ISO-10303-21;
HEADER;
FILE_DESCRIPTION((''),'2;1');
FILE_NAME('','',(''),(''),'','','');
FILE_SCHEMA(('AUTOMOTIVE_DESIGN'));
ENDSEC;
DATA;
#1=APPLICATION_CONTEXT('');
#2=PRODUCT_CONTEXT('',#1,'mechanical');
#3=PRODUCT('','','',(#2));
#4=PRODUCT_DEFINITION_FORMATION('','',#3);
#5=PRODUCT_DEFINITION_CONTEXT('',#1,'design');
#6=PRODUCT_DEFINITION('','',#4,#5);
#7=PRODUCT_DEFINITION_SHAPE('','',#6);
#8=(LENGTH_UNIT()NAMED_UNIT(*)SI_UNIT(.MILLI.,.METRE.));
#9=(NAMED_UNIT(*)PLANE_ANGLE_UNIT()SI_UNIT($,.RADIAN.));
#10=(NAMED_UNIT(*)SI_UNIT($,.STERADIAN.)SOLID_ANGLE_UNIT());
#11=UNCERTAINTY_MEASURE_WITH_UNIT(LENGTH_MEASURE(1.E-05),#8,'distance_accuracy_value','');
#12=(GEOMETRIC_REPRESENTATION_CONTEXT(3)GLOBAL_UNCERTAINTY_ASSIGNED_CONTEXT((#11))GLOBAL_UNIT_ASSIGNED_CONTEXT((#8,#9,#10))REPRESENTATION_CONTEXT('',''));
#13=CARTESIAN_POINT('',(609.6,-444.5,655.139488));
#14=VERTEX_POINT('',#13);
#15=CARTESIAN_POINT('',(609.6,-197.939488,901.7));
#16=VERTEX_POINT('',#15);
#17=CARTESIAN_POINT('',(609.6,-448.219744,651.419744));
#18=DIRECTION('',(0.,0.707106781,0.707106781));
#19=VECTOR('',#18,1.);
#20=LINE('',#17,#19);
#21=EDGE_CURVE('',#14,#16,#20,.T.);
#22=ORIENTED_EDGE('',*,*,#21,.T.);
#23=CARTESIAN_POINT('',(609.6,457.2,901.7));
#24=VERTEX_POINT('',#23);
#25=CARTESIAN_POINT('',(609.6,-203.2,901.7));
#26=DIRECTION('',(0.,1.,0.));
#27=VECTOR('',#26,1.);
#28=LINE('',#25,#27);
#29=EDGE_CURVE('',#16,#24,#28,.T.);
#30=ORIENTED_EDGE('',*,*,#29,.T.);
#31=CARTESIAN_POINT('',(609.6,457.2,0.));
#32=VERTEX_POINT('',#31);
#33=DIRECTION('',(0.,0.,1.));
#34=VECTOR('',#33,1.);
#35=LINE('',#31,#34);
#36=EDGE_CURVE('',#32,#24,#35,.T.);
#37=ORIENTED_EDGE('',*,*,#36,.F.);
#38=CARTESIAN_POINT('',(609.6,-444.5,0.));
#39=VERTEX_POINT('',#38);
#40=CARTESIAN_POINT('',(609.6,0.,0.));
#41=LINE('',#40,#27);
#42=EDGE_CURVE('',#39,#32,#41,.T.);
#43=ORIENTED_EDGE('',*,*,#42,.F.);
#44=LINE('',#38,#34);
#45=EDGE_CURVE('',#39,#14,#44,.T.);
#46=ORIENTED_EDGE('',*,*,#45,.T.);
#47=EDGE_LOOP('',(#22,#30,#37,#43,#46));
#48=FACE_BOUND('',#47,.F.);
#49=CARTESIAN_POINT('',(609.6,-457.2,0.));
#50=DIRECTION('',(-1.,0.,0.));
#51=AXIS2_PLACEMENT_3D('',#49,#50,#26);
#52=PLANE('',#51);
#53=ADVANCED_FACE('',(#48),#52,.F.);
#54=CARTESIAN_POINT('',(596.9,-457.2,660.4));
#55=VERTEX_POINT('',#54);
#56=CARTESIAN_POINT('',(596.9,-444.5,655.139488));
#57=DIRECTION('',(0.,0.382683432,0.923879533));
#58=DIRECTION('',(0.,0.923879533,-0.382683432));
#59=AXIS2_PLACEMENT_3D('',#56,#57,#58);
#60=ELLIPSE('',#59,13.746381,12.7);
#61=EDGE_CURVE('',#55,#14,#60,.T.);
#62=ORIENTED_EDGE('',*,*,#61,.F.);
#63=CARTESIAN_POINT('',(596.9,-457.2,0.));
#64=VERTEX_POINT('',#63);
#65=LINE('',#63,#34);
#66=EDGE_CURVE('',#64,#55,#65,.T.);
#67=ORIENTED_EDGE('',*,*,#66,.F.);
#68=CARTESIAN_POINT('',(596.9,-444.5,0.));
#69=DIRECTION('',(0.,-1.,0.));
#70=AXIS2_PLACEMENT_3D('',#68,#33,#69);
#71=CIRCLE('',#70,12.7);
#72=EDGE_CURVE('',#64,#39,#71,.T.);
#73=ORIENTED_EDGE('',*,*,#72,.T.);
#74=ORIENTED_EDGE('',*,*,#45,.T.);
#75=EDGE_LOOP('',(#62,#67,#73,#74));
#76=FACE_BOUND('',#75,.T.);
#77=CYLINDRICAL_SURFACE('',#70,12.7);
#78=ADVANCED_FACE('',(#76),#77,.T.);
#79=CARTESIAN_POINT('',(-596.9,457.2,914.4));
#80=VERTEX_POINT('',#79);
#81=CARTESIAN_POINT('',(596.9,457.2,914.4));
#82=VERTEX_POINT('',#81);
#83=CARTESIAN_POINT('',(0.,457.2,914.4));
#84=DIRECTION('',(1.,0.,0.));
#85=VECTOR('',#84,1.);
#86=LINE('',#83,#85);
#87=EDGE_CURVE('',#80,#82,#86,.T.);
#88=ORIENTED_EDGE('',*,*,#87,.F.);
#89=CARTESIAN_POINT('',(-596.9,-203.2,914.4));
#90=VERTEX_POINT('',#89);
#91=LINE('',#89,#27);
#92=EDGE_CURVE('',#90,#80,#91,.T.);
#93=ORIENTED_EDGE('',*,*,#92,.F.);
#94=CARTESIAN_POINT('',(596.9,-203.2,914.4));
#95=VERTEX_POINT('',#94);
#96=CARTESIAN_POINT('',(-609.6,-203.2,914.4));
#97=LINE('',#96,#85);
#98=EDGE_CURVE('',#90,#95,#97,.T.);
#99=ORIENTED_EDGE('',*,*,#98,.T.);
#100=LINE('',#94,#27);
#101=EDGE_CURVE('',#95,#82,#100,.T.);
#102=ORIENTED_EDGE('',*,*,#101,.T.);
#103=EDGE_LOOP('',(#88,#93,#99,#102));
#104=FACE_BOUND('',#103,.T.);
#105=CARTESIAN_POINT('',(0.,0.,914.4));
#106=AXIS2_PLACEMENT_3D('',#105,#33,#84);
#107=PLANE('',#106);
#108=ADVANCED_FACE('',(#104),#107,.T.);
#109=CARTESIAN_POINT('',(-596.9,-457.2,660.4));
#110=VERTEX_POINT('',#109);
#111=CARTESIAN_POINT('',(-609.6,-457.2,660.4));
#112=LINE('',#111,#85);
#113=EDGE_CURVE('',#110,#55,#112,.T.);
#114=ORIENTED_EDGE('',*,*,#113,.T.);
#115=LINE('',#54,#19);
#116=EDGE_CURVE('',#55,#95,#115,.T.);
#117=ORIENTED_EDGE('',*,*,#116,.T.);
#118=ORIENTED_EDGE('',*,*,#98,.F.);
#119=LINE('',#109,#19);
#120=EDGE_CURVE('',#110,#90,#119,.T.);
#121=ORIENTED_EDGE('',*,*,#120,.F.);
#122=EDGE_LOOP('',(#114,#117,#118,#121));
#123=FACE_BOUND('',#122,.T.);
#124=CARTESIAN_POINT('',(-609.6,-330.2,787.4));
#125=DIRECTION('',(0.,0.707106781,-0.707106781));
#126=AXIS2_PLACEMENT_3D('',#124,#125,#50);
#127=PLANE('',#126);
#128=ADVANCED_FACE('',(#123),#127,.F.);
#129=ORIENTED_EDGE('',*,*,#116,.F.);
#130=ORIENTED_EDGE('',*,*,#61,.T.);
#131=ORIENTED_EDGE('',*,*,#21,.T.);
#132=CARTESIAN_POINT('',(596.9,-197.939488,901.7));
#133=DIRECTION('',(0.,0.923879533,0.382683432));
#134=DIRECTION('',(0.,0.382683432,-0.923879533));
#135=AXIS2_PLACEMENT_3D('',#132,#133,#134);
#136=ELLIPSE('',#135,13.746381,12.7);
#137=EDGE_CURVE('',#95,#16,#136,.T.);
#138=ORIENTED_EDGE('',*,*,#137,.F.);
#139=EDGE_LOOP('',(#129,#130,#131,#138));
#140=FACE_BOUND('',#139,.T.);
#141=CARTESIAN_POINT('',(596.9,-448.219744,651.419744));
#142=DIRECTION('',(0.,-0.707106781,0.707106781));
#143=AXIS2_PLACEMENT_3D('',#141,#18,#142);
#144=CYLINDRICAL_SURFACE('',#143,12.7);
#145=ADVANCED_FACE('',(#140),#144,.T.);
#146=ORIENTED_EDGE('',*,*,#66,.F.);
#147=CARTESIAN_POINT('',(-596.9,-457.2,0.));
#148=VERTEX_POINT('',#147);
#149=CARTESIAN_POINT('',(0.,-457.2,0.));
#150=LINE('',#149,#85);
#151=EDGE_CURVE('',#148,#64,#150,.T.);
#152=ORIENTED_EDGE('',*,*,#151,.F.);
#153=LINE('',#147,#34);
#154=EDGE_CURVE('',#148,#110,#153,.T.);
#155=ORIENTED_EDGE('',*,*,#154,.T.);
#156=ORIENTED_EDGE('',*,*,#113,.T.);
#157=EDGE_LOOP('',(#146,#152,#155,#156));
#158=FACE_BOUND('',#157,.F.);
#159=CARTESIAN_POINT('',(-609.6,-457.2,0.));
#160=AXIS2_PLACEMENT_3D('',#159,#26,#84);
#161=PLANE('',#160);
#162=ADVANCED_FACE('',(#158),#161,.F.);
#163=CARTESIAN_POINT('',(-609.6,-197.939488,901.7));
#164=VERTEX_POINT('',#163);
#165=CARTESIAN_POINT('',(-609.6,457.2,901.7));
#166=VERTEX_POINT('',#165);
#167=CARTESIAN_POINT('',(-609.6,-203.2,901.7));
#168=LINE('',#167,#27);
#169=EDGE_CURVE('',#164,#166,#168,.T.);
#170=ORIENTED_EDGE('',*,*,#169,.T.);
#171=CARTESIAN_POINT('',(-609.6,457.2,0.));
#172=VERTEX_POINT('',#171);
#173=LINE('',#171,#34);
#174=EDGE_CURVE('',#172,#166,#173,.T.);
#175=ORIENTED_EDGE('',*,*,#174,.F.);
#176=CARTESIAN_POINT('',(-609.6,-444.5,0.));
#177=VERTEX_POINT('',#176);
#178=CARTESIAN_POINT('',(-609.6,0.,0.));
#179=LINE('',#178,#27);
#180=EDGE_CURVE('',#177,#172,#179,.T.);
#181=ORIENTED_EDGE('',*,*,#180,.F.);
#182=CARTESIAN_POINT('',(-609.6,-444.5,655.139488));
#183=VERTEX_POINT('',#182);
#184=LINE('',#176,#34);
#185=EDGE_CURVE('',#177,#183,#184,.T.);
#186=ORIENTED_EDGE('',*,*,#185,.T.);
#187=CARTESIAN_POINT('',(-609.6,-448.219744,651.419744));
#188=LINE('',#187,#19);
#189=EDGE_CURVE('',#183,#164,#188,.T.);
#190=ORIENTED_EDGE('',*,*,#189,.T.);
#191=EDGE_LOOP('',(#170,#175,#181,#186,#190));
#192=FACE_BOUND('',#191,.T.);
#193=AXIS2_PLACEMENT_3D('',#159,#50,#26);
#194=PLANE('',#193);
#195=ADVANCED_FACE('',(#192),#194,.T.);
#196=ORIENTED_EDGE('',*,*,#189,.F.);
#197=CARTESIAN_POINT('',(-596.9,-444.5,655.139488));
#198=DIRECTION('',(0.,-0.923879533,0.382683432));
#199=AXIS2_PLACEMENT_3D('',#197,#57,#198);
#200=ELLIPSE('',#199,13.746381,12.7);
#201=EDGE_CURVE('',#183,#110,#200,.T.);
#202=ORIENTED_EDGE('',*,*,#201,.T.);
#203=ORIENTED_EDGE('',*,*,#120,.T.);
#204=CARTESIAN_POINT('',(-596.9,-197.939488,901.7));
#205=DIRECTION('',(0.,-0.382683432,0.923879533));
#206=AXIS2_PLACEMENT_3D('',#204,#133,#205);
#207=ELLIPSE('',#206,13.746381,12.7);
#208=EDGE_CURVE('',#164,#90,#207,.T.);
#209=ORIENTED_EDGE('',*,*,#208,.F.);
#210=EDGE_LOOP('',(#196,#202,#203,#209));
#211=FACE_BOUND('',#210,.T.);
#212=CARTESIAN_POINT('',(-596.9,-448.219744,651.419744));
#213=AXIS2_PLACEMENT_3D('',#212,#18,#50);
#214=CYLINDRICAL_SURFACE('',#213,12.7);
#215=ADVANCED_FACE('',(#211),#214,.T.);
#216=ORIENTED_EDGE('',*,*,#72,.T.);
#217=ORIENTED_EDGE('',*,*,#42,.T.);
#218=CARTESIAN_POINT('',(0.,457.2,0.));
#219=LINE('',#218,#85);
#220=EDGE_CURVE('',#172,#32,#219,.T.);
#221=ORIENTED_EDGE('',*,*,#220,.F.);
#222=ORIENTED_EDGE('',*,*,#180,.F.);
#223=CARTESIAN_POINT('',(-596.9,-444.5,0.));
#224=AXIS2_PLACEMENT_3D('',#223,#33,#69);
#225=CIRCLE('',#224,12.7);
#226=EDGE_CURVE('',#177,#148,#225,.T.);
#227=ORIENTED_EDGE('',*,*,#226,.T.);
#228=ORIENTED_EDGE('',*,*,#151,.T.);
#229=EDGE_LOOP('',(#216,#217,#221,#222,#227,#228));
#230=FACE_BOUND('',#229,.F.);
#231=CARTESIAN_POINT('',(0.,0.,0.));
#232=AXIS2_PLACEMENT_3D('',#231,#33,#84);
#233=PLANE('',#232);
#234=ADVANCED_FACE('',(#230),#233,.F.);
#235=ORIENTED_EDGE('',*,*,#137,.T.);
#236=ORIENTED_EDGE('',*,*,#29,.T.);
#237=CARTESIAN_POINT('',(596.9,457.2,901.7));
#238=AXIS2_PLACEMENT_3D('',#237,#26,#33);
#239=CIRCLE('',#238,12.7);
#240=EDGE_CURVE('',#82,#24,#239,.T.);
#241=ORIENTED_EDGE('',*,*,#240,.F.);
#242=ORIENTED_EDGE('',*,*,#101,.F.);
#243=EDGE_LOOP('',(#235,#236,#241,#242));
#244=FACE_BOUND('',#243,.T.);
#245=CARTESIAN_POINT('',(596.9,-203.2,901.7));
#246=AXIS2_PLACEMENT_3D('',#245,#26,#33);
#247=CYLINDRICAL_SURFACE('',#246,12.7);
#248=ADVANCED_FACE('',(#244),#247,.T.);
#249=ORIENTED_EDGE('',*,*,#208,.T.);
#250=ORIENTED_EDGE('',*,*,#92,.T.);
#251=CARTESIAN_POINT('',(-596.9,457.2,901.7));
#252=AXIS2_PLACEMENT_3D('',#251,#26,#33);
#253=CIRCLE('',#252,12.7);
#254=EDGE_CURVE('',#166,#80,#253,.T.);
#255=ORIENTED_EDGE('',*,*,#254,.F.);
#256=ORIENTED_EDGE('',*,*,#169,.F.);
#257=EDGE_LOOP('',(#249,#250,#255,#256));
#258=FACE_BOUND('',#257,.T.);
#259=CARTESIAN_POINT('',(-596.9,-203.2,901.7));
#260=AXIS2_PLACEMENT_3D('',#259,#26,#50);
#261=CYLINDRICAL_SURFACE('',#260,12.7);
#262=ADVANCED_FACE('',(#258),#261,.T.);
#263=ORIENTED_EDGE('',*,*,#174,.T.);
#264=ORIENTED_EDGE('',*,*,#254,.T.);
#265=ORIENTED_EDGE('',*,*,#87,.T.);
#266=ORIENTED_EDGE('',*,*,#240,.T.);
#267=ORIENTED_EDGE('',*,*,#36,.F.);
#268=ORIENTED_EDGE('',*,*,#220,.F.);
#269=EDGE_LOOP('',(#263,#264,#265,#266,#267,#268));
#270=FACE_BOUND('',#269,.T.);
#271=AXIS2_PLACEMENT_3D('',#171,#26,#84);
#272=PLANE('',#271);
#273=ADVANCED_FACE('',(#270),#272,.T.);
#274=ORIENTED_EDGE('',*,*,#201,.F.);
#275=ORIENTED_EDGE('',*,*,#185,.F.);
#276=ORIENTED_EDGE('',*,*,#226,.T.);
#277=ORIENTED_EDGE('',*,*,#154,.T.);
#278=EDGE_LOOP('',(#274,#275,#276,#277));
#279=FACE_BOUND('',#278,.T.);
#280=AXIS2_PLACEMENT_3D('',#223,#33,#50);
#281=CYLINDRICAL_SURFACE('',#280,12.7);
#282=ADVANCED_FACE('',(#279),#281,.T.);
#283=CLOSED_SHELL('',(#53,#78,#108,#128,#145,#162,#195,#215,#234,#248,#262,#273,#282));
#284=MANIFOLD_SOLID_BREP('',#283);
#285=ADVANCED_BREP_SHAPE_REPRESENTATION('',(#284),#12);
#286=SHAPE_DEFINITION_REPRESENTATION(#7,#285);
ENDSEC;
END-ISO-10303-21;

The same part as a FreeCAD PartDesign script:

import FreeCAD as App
import Part
import Sketcher
from FreeCAD import Vector
Q = App.Units.Quantity


def edges_at(feature, points):
    """Names of the edges that pass closest to the given points."""
    edges = feature.Shape.Edges
    near = lambda p: min(range(len(edges)), key=lambda i: edges[i].distToShape(Part.Vertex(*p))[0])
    return sorted({f"Edge{near(p) + 1}" for p in points})

doc = App.newDocument("Part")
body = doc.addObject("PartDesign::Body", "Body")

# Sketch on XY plane
sketch1 = body.newObject("Sketcher::SketchObject", "Sketch")
sketch1.AttachmentSupport = (doc.getObject("XY_Plane"), [""])
sketch1.MapMode = "FlatFace"
sketch1.addGeometry(Part.LineSegment(Vector(-610, 457, 0), Vector(-610, -457, 0)), False)
sketch1.addGeometry(Part.LineSegment(Vector(-610, -457, 0), Vector(610, -457, 0)), False)
sketch1.addGeometry(Part.LineSegment(Vector(610, -457, 0), Vector(610, 457, 0)), False)
sketch1.addGeometry(Part.LineSegment(Vector(610, 457, 0), Vector(-610, 457, 0)), False)
sketch1.addConstraint(Sketcher.Constraint("Coincident", 0, 2, 1, 1))
sketch1.addConstraint(Sketcher.Constraint("Coincident", 1, 2, 2, 1))
sketch1.addConstraint(Sketcher.Constraint("Coincident", 2, 2, 3, 1))
sketch1.addConstraint(Sketcher.Constraint("Coincident", 3, 2, 0, 1))
sketch1.addConstraint(Sketcher.Constraint("Vertical", 0))
sketch1.addConstraint(Sketcher.Constraint("Horizontal", 1))
sketch1.addConstraint(Sketcher.Constraint("Vertical", 2))
sketch1.addConstraint(Sketcher.Constraint("Horizontal", 3))
sketch1.addConstraint(Sketcher.Constraint("Symmetric", 0, 2, 2, 2, -1, 1))
sketch1.addConstraint(Sketcher.Constraint("DistanceX", 1, 1, 1, 2, Q("48 in")))
sketch1.addConstraint(Sketcher.Constraint("DistanceY", 0, 2, 0, 1, Q("36 in")))
pad1 = body.newObject("PartDesign::Pad", "Pad")
pad1.Profile = sketch1
pad1.Length = Q("36 in")
doc.recompute()

chamfer = body.newObject("PartDesign::Chamfer", "Chamfer")
chamfer.Base = (pad1, edges_at(pad1, [(0, -457.2, 914.4)]))
chamfer.Size = Q("10 in")
doc.recompute()

fillet = body.newObject("PartDesign::Fillet", "Fillet")
fillet.Base = (chamfer, edges_at(chamfer, [
    (609.6, 127, 914.4),
    (609.6, -330.2, 787.4),
    (609.6, -457.2, 330.2),
    (-609.6, -457.2, 330.2),
    (-609.6, -330.2, 787.4),
    (-609.6, 127, 914.4),
]))
fillet.Radius = Q("0.5 in")

doc.recompute()
